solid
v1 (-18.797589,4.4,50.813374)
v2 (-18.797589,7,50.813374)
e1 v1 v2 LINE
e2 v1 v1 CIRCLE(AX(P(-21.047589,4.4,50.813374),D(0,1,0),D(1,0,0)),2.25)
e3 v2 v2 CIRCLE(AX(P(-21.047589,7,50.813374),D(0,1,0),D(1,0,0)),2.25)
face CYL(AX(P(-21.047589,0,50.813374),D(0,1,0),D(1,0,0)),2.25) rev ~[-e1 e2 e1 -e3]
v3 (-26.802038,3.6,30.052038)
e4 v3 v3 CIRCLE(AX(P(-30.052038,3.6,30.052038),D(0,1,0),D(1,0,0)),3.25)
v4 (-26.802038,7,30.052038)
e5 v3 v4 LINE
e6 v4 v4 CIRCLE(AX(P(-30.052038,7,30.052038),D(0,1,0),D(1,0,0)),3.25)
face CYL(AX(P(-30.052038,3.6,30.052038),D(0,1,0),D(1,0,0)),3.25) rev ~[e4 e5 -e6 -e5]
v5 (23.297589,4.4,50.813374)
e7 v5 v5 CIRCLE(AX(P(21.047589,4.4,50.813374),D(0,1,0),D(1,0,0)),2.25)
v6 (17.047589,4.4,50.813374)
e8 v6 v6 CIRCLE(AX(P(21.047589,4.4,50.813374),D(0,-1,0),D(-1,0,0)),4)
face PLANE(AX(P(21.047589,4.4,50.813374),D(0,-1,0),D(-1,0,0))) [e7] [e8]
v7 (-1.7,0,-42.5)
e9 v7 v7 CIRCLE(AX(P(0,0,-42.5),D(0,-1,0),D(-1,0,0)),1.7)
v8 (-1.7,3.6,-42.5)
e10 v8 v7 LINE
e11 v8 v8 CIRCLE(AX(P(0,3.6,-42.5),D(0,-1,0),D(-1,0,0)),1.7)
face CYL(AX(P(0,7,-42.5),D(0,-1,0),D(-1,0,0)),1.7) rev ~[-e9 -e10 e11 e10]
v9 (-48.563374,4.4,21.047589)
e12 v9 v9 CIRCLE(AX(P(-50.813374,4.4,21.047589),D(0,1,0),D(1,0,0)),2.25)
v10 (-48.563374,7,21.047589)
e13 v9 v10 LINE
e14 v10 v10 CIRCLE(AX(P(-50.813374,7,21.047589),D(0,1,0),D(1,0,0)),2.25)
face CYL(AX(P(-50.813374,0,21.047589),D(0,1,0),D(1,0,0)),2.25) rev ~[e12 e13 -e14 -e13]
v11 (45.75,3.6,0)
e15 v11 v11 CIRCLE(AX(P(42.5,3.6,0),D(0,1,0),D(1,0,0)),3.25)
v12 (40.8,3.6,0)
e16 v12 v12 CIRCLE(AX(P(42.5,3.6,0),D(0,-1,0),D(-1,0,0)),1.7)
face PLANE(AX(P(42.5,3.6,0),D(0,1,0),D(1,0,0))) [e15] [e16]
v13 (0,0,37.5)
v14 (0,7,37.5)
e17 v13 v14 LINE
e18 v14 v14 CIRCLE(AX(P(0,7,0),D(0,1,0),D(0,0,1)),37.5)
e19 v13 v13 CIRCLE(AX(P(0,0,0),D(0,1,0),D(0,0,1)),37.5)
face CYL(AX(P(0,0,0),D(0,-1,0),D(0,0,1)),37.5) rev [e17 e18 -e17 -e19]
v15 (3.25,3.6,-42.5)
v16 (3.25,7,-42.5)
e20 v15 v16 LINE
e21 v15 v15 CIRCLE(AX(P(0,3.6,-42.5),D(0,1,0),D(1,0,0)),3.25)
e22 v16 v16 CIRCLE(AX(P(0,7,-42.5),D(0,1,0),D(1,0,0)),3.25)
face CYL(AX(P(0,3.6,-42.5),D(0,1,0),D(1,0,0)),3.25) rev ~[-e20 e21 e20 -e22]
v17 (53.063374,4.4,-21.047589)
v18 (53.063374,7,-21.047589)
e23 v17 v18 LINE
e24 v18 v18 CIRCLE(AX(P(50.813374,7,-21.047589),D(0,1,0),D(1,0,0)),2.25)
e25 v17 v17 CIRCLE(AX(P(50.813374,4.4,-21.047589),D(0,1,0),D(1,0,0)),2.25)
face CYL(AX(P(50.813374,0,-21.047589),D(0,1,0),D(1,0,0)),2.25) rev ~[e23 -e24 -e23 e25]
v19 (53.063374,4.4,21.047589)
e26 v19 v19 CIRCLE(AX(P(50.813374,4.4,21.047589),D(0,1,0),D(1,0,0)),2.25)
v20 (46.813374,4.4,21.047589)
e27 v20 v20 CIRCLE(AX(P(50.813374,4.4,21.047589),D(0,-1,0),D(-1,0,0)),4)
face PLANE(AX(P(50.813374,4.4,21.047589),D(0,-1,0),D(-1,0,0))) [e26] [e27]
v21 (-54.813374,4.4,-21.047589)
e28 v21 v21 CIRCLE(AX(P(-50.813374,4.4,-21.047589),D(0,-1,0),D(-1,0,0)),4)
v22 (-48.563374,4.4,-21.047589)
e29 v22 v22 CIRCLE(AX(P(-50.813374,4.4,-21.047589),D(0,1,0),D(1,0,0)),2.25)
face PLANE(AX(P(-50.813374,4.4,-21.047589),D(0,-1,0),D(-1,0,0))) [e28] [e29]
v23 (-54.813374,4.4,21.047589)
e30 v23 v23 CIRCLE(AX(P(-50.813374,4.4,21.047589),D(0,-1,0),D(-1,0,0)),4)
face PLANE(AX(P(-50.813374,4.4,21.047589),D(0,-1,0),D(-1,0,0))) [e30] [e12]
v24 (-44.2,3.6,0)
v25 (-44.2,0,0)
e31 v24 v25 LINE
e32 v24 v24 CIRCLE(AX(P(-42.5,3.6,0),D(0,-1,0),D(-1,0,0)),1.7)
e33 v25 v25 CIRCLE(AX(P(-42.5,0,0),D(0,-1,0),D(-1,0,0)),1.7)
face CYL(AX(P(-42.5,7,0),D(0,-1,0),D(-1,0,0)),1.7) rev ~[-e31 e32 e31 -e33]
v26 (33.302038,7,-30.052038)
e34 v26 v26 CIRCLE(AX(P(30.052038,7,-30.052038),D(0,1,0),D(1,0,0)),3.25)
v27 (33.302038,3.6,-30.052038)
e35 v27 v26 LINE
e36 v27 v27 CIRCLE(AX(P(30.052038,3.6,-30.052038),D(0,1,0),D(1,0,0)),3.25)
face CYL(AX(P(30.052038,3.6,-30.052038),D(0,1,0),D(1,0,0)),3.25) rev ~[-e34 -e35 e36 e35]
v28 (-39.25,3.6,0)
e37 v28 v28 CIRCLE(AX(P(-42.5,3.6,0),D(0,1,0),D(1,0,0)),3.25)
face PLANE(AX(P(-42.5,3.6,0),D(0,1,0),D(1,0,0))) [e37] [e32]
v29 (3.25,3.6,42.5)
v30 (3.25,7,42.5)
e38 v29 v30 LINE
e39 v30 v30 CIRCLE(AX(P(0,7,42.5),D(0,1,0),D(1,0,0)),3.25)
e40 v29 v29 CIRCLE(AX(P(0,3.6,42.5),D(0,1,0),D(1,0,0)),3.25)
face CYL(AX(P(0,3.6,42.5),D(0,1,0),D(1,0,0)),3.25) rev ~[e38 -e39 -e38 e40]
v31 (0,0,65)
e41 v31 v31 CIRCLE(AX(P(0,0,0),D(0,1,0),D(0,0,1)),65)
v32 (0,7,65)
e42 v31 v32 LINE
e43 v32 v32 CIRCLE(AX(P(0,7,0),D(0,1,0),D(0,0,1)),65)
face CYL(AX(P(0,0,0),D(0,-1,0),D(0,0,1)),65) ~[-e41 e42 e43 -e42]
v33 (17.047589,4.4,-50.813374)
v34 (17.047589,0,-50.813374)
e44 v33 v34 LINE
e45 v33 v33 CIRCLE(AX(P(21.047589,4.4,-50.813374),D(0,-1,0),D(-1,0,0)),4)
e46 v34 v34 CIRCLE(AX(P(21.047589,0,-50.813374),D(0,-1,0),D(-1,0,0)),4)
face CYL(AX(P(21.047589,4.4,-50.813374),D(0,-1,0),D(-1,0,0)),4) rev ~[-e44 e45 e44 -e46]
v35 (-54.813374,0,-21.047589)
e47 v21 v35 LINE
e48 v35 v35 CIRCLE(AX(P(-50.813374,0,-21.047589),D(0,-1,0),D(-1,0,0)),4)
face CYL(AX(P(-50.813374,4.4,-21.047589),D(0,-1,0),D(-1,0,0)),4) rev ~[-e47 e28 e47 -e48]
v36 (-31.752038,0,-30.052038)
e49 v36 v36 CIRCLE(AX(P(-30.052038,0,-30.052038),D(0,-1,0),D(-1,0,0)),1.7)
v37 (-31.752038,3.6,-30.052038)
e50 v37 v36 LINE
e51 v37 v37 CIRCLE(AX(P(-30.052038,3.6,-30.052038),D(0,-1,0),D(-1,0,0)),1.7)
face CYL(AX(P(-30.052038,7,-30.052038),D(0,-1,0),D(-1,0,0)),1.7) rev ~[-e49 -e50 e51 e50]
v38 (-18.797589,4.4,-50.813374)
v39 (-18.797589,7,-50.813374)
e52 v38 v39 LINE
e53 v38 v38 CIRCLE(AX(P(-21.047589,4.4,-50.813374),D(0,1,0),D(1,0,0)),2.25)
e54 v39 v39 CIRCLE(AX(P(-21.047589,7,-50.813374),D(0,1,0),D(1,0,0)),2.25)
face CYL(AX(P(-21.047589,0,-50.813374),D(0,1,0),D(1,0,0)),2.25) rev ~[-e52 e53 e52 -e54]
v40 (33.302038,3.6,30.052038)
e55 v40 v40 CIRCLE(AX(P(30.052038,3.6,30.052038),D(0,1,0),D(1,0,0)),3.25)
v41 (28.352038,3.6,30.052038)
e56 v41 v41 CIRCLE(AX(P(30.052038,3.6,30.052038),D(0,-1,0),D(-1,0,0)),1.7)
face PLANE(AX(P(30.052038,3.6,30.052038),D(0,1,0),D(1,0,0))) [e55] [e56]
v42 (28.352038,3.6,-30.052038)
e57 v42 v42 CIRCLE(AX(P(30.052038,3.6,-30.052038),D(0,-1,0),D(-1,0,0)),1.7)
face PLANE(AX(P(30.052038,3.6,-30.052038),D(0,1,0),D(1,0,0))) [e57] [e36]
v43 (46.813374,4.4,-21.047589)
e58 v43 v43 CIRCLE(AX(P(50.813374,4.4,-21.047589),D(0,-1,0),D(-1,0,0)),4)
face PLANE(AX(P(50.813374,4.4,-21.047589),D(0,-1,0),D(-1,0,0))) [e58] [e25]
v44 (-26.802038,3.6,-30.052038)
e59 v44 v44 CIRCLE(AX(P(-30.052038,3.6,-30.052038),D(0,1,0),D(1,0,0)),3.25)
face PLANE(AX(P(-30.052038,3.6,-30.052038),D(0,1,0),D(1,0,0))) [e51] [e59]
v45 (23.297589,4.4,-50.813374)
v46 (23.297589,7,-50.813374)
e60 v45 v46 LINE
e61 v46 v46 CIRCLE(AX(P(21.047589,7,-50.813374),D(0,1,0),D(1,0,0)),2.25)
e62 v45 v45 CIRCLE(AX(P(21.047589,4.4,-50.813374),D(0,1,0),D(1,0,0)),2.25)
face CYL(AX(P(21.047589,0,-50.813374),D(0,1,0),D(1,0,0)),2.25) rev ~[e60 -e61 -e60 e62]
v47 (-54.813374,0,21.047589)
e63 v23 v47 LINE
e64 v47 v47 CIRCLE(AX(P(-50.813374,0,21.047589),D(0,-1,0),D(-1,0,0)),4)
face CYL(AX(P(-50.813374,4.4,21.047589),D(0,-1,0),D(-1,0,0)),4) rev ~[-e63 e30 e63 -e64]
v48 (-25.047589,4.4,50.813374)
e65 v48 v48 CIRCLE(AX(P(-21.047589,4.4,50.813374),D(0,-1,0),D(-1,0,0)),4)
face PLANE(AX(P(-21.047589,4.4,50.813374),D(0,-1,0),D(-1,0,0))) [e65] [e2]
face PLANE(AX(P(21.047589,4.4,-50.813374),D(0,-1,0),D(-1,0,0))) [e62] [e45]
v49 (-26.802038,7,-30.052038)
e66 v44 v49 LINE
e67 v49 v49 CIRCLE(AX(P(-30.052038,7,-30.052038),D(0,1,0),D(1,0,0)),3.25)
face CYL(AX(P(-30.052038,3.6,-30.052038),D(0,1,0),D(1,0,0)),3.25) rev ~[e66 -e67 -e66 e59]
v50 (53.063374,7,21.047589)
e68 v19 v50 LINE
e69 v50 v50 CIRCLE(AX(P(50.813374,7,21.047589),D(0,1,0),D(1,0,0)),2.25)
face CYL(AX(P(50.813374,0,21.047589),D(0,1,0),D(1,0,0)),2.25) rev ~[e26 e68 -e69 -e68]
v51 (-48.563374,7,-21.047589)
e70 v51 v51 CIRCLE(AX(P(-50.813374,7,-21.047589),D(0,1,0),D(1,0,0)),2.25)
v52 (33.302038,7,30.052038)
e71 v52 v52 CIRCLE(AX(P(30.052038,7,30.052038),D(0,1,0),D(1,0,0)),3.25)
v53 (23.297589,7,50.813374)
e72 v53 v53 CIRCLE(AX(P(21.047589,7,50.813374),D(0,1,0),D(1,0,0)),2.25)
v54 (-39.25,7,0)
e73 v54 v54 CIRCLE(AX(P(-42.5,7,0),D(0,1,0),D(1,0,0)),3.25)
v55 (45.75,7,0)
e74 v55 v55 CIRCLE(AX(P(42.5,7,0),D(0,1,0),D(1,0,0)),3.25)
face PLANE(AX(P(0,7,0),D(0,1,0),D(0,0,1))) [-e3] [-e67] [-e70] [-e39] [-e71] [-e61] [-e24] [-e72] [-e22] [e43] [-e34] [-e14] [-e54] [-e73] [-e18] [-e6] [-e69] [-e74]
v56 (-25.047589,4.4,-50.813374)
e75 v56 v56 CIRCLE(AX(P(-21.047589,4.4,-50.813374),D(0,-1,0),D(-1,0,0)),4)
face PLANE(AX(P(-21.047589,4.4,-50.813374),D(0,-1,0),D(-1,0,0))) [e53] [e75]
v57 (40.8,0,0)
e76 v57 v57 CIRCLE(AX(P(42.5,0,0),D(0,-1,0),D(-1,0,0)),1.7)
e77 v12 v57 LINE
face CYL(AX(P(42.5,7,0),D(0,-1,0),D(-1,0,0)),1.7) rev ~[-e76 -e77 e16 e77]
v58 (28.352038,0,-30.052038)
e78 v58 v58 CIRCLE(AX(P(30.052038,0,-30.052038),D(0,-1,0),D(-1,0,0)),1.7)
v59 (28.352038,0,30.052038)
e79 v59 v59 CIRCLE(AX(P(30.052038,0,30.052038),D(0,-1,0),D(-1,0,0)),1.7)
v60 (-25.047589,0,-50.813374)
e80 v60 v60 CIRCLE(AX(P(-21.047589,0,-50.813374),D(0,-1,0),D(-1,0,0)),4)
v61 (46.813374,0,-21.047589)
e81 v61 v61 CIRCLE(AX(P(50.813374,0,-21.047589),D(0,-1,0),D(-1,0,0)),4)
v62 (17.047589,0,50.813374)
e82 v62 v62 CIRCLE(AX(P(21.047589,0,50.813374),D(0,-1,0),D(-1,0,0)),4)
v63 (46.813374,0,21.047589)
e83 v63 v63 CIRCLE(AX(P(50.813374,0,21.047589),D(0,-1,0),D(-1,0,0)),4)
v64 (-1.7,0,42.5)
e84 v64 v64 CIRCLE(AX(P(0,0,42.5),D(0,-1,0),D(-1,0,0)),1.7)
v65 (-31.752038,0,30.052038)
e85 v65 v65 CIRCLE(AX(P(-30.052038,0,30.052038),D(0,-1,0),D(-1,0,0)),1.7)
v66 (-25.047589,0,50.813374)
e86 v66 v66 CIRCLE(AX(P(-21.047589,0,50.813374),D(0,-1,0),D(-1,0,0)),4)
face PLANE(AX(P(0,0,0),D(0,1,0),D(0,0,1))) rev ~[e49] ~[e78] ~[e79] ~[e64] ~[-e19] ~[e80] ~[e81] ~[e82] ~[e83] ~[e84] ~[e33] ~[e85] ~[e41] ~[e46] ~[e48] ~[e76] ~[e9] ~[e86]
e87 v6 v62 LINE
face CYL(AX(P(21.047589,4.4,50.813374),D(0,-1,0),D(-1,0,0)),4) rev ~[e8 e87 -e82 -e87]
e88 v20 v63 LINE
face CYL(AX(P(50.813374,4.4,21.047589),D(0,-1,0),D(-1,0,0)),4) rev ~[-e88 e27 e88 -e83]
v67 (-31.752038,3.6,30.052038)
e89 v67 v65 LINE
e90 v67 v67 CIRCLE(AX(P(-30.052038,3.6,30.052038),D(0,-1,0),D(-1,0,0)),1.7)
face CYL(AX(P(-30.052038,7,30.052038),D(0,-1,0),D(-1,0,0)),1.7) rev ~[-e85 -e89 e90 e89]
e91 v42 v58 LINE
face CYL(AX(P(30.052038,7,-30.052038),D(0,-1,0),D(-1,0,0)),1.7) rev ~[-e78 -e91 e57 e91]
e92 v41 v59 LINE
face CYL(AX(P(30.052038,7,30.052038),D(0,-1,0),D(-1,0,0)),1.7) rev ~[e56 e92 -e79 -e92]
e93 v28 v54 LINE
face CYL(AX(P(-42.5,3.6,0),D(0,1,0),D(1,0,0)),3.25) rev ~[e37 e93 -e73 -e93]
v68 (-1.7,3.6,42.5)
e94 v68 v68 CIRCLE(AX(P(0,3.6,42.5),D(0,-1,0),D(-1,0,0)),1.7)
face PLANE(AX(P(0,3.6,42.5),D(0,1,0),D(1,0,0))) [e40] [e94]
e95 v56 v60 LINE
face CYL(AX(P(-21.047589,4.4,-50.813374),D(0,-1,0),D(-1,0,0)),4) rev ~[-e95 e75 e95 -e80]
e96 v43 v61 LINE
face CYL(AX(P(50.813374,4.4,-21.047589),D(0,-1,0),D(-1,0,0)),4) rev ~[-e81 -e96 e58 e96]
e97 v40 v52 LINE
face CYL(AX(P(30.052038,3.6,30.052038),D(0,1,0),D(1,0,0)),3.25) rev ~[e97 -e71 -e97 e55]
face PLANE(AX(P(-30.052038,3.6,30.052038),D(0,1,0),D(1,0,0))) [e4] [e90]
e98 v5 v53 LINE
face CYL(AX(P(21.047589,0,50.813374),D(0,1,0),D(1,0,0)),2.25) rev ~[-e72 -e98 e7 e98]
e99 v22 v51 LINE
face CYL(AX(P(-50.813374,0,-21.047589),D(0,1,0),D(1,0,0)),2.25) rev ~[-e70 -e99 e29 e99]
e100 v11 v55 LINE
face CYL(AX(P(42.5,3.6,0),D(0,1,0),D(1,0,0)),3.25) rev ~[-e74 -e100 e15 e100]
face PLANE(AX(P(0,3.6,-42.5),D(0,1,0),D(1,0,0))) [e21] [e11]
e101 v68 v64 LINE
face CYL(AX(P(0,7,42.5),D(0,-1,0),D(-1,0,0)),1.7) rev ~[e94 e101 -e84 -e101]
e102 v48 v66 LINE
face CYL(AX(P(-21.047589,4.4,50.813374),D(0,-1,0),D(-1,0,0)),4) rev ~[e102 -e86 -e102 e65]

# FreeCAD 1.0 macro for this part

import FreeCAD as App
import Part
import Sketcher

V = App.Vector
Q = App.Units.Quantity

doc = App.newDocument("Part")
body = doc.addObject("PartDesign::Body", "Body")

sketch1 = body.newObject("Sketcher::SketchObject", "Sketch")
sketch1.AttachmentSupport = (doc.getObject("XZ_Plane"), [""])
sketch1.MapMode = "FlatFace"
sketch1.addGeometry(Part.Circle(V(0, 0, 0), V(0, 0, 1), 65), False)
sketch1.addGeometry(Part.Circle(V(0, 0, 0), V(0, 0, 1), 38), False)
sketch1.addConstraint(Sketcher.Constraint("Coincident", 0, 3, -1, 1))
sketch1.addConstraint(Sketcher.Constraint("Coincident", 1, 3, -1, 1))
sketch1.addConstraint(Sketcher.Constraint("Diameter", 0, Q("130 mm")))
sketch1.addConstraint(Sketcher.Constraint("Diameter", 1, Q("75 mm")))
pad1 = body.newObject("PartDesign::Pad", "Pad")
pad1.Profile = sketch1
pad1.Length = 7
pad1.Reversed = True

sketch2 = body.newObject("Sketcher::SketchObject", "Sketch001")
sketch2.AttachmentSupport = (doc.getObject("XZ_Plane"), [""])
sketch2.MapMode = "FlatFace"
sketch2.AttachmentOffset = App.Placement(V(0, 0, -7), App.Rotation())
sketch2.addGeometry(Part.Circle(V(-30.1, -30.1, 0), V(0, 0, 1), 1.7), False)
sketch2.addGeometry(Part.Circle(V(0, -42.5, 0), V(0, 0, 1), 1.7), False)
sketch2.addGeometry(Part.Circle(V(30.1, -30.1, 0), V(0, 0, 1), 1.7), False)
sketch2.addGeometry(Part.Circle(V(42.5, 0, 0), V(0, 0, 1), 1.7), False)
sketch2.addGeometry(Part.Circle(V(30.1, 30.1, 0), V(0, 0, 1), 1.7), False)
sketch2.addGeometry(Part.Circle(V(0, 42.5, 0), V(0, 0, 1), 1.7), False)
sketch2.addGeometry(Part.Circle(V(-30.1, 30.1, 0), V(0, 0, 1), 1.7), False)
sketch2.addGeometry(Part.Circle(V(-42.5, 0, 0), V(0, 0, 1), 1.7), False)
sketch2.addConstraint(Sketcher.Constraint("Equal", 0, 1))
sketch2.addConstraint(Sketcher.Constraint("Equal", 1, 2))
sketch2.addConstraint(Sketcher.Constraint("Equal", 2, 3))
sketch2.addConstraint(Sketcher.Constraint("Equal", 3, 4))
sketch2.addConstraint(Sketcher.Constraint("Equal", 4, 5))
sketch2.addConstraint(Sketcher.Constraint("Equal", 5, 6))
sketch2.addConstraint(Sketcher.Constraint("Equal", 6, 7))
sketch2.addConstraint(Sketcher.Constraint("Symmetric", 0, 3, 4, 3, -1, 1))
sketch2.addConstraint(Sketcher.Constraint("Symmetric", 1, 3, 5, 3, -1, 1))
sketch2.addConstraint(Sketcher.Constraint("Symmetric", 2, 3, 6, 3, -1, 1))
sketch2.addConstraint(Sketcher.Constraint("Symmetric", 3, 3, 7, 3, -1, 1))
sketch2.addConstraint(Sketcher.Constraint("Symmetric", 0, 3, 2, 3, -2))
sketch2.addConstraint(Sketcher.Constraint("PointOnObject", 1, 3, -2))
sketch2.addConstraint(Sketcher.Constraint("PointOnObject", 3, 3, -1))
sketch2.addConstraint(Sketcher.Constraint("Diameter", 0, Q("3.4 mm")))
sketch2.addConstraint(Sketcher.Constraint("DistanceY", 1, 3, 5, 3, Q("85 mm")))
sketch2.addConstraint(Sketcher.Constraint("DistanceX", -1, 1, 3, 3, Q("42.5 mm")))
sketch2.addConstraint(Sketcher.Constraint("DistanceX", 0, 3, -1, 1, Q("30.052038 mm")))
sketch2.addConstraint(Sketcher.Constraint("DistanceY", 0, 3, -1, 1, Q("30.052038 mm")))
doc.recompute()
hole = body.newObject("PartDesign::Hole", "Hole")
hole.Profile = sketch2
hole.ThreadType = "None"
hole.Diameter = 3.4
hole.DepthType = "ThroughAll"
hole.HoleCutType = "Counterbore"
hole.HoleCutDiameter = 6.5
hole.HoleCutDepth = 3.4
hole.Reversed = True

sketch3 = body.newObject("Sketcher::SketchObject", "Sketch002")
sketch3.AttachmentSupport = (doc.getObject("XZ_Plane"), [""])
sketch3.MapMode = "FlatFace"
sketch3.addGeometry(Part.Circle(V(50.8, 21, 0), V(0, 0, 1), 2.2), False)
sketch3.addGeometry(Part.Circle(V(50.8, -21, 0), V(0, 0, 1), 2.2), False)
sketch3.addGeometry(Part.Circle(V(21, -50.8, 0), V(0, 0, 1), 2.2), False)
sketch3.addGeometry(Part.Circle(V(-21, -50.8, 0), V(0, 0, 1), 2.2), False)
sketch3.addGeometry(Part.Circle(V(-50.8, -21, 0), V(0, 0, 1), 2.2), False)
sketch3.addGeometry(Part.Circle(V(-50.8, 21, 0), V(0, 0, 1), 2.2), False)
sketch3.addGeometry(Part.Circle(V(-21, 50.8, 0), V(0, 0, 1), 2.2), False)
sketch3.addGeometry(Part.Circle(V(21, 50.8, 0), V(0, 0, 1), 2.2), False)
sketch3.addConstraint(Sketcher.Constraint("Equal", 0, 1))
sketch3.addConstraint(Sketcher.Constraint("Equal", 1, 2))
sketch3.addConstraint(Sketcher.Constraint("Equal", 2, 3))
sketch3.addConstraint(Sketcher.Constraint("Equal", 3, 4))
sketch3.addConstraint(Sketcher.Constraint("Equal", 4, 5))
sketch3.addConstraint(Sketcher.Constraint("Equal", 5, 6))
sketch3.addConstraint(Sketcher.Constraint("Equal", 6, 7))
sketch3.addConstraint(Sketcher.Constraint("Symmetric", 0, 3, 4, 3, -1, 1))
sketch3.addConstraint(Sketcher.Constraint("Symmetric", 1, 3, 5, 3, -1, 1))
sketch3.addConstraint(Sketcher.Constraint("Symmetric", 2, 3, 6, 3, -1, 1))
sketch3.addConstraint(Sketcher.Constraint("Symmetric", 3, 3, 7, 3, -1, 1))
sketch3.addConstraint(Sketcher.Constraint("Symmetric", 2, 3, 3, 3, -2))
sketch3.addConstraint(Sketcher.Constraint("Symmetric", 1, 3, 4, 3, -2))
sketch3.addConstraint(Sketcher.Constraint("Diameter", 0, Q("4.5 mm")))
sketch3.addConstraint(Sketcher.Constraint("DistanceY", -1, 1, 0, 3, Q("21.047589 mm")))
sketch3.addConstraint(Sketcher.Constraint("DistanceX", -1, 1, 2, 3, Q("21.047589 mm")))
sketch3.addConstraint(Sketcher.Constraint("DistanceX", 4, 3, 1, 3, Q("101.626749 mm")))
sketch3.addConstraint(Sketcher.Constraint("DistanceY", 3, 3, 6, 3, Q("101.626749 mm")))
doc.recompute()
hole2 = body.newObject("PartDesign::Hole", "Hole001")
hole2.Profile = sketch3
hole2.ThreadType = "None"
hole2.Diameter = 4.5
hole2.DepthType = "ThroughAll"
hole2.HoleCutType = "Counterbore"
hole2.HoleCutDiameter = 8
hole2.HoleCutDepth = 4.4

doc.recompute()
